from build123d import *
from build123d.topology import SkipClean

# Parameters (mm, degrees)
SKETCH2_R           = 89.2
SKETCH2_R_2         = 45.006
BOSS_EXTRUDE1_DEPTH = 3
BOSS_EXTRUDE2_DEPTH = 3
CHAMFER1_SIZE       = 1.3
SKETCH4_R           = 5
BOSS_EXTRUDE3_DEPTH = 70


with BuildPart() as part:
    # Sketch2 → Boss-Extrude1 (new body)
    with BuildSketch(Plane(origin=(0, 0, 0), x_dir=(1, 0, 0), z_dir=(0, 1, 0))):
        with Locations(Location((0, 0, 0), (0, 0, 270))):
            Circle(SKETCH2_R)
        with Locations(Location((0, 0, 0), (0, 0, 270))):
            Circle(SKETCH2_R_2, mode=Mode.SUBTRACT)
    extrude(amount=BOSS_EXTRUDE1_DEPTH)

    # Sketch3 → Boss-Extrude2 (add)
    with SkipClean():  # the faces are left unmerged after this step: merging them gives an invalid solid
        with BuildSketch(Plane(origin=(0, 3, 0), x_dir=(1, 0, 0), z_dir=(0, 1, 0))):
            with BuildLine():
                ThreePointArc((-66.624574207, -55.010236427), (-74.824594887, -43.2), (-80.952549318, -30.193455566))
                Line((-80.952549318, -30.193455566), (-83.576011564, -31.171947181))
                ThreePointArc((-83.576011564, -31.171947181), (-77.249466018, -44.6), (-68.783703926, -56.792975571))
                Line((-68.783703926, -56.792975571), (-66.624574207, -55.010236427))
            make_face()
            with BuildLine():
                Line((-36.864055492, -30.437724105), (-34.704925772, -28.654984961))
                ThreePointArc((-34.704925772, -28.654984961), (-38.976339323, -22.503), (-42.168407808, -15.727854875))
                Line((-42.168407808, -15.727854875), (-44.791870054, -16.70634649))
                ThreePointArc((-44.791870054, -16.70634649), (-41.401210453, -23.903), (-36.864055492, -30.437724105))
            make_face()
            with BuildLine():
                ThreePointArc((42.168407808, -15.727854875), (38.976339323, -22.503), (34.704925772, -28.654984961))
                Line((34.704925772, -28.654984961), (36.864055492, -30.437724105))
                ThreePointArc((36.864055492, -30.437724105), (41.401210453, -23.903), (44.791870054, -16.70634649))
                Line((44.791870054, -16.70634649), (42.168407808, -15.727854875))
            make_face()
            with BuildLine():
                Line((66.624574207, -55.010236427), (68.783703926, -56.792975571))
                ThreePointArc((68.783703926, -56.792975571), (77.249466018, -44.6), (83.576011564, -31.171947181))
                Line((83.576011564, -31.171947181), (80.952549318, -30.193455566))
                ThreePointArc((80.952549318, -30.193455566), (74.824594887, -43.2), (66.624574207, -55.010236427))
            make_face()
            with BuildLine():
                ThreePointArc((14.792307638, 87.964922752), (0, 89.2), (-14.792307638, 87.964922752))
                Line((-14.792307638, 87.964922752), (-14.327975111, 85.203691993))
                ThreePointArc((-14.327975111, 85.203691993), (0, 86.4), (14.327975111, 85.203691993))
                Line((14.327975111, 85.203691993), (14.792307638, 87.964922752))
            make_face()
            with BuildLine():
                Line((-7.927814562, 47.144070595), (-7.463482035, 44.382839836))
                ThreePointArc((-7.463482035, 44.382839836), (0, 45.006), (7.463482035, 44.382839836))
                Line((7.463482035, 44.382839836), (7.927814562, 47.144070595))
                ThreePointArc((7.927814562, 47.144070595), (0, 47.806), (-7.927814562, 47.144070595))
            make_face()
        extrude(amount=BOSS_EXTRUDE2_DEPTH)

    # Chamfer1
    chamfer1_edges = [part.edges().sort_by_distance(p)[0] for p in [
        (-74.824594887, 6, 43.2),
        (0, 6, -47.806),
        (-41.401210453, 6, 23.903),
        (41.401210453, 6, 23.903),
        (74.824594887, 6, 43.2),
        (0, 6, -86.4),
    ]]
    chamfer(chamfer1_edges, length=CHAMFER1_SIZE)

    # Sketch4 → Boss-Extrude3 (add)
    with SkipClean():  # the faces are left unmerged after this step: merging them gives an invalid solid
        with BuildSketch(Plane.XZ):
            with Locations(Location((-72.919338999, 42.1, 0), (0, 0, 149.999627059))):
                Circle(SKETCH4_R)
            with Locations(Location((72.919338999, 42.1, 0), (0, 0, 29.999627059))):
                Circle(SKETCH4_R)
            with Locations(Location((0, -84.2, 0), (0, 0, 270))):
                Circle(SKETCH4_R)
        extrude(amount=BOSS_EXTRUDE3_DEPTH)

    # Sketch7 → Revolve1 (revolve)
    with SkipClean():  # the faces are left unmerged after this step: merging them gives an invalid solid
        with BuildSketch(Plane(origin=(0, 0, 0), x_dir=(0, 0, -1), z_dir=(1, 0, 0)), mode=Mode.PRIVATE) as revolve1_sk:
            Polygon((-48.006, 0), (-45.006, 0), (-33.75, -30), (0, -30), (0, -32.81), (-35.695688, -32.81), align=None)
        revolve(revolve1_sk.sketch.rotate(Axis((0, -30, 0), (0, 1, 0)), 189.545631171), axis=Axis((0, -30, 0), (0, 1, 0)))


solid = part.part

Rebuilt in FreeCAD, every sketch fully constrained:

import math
import FreeCAD as App
import Part
import Sketcher

V = App.Vector


def edges_at(feature, points):
    """Names of the edges that pass closest to the given points."""
    edges = feature.Shape.Edges
    near = lambda p: min(range(len(edges)), key=lambda i: edges[i].distToShape(Part.Vertex(*p))[0])
    return sorted({f"Edge{near(p) + 1}" for p in points})


def add_polygon(sketch, points):
    """Adds a closed chain of lines whose ends are joined by coincident constraints."""
    first, n = sketch.GeometryCount, len(points)
    for a, b in zip(points, points[1:] + points[:1]):
        sketch.addGeometry(Part.LineSegment(App.Vector(*a, 0), App.Vector(*b, 0)), False)
    for i in range(n):
        sketch.addConstraint(Sketcher.Constraint("Coincident", first + i, 2, first + (i + 1) % n, 1))

doc = App.newDocument("Part")
body = doc.addObject("PartDesign::Body", "Body")

# Sketch on XZ plane
sketch1 = body.newObject("Sketcher::SketchObject", "Sketch")
sketch1.AttachmentSupport = (doc.getObject("XZ_Plane"), [""])
sketch1.MapMode = "FlatFace"
sketch1.addGeometry([
    Part.Circle(V(0, 0, 0), V(0, 0, 1), 89),
    Part.Circle(V(0, 0, 0), V(0, 0, 1), 45),
], False)
sketch1.addConstraint([
    Sketcher.Constraint("Coincident", 0, 3, -1, 1),
    Sketcher.Constraint("Coincident", 1, 3, -1, 1),
    Sketcher.Constraint("Diameter", 0, 178.4),
    Sketcher.Constraint("Diameter", 1, 90.012),
])
pad1 = body.newObject("PartDesign::Pad", "Pad")
pad1.Profile = sketch1
pad1.Length = 3
pad1.Reversed = True

# Sketch on XZ plane
sketch2 = body.newObject("Sketcher::SketchObject", "Sketch001")
sketch2.AttachmentSupport = (doc.getObject("XZ_Plane"), [""])
sketch2.MapMode = "FlatFace"
sketch2.AttachmentOffset = App.Placement(V(0, 0, -3), App.Rotation())
sketch2.addGeometry([
    Part.ArcOfCircle(Part.Circle(V(0, 0, 0), V(0, 0, 1), 86.4), math.radians(140.45), math.radians(159.55)),  # 0
    Part.LineSegment(V(-81, 30.2, 0), V(-83.6, 31.2, 0)),  # 1
    Part.ArcOfCircle(Part.Circle(V(0, 0, 0), V(0, 0, 1), 89.2), math.radians(140.45), math.radians(159.55)),  # 2
    Part.LineSegment(V(-68.8, 56.8, 0), V(-66.6, 55, 0)),  # 3
    Part.LineSegment(V(-36.9, 30.4, 0), V(-34.7, 28.7, 0)),  # 4
    Part.ArcOfCircle(Part.Circle(V(0, 0, 0), V(0, 0, 1), 45), math.radians(140.45), math.radians(159.55)),  # 5
    Part.LineSegment(V(-42.2, 15.7, 0), V(-44.8, 16.7, 0)),  # 6
    Part.ArcOfCircle(Part.Circle(V(0, 0, 0), V(0, 0, 1), 47.8), math.radians(140.45), math.radians(159.55)),  # 7
    Part.ArcOfCircle(Part.Circle(V(0, 0, 0), V(0, 0, 1), 45), math.radians(20.45), math.radians(39.55)),  # 8
    Part.LineSegment(V(34.7, 28.7, 0), V(36.9, 30.4, 0)),  # 9
    Part.ArcOfCircle(Part.Circle(V(0, 0, 0), V(0, 0, 1), 47.8), math.radians(20.45), math.radians(39.55)),  # 10
    Part.LineSegment(V(44.8, 16.7, 0), V(42.2, 15.7, 0)),  # 11
    Part.LineSegment(V(66.6, 55, 0), V(68.8, 56.8, 0)),  # 12
    Part.ArcOfCircle(Part.Circle(V(0, 0, 0), V(0, 0, 1), 89.2), math.radians(20.45), math.radians(39.55)),  # 13
    Part.LineSegment(V(83.6, 31.2, 0), V(81, 30.2, 0)),  # 14
    Part.ArcOfCircle(Part.Circle(V(0, 0, 0), V(0, 0, 1), 86.4), math.radians(20.45), math.radians(39.55)),  # 15
    Part.ArcOfCircle(Part.Circle(V(0, 0, 0), V(0, 0, 1), 89.2), math.radians(-99.55), math.radians(-80.45)),  # 16
    Part.LineSegment(V(-14.8, -88, 0), V(-14.3, -85.2, 0)),  # 17
    Part.ArcOfCircle(Part.Circle(V(0, 0, 0), V(0, 0, 1), 86.4), math.radians(-99.55), math.radians(-80.45)),  # 18
    Part.LineSegment(V(14.3, -85.2, 0), V(14.8, -88, 0)),  # 19
    Part.LineSegment(V(-7.9, -47.1, 0), V(-7.5, -44.4, 0)),  # 20
    Part.ArcOfCircle(Part.Circle(V(0, 0, 0), V(0, 0, 1), 45), math.radians(-99.55), math.radians(-80.45)),  # 21
    Part.LineSegment(V(7.5, -44.4, 0), V(7.9, -47.1, 0)),  # 22
    Part.ArcOfCircle(Part.Circle(V(0, 0, 0), V(0, 0, 1), 47.8), math.radians(-99.55), math.radians(-80.45)),  # 23
], False)
sketch2.addConstraint([
    Sketcher.Constraint("Coincident", 0, 2, 1, 1),
    Sketcher.Constraint("Coincident", 1, 2, 2, 2),
    Sketcher.Constraint("Coincident", 2, 1, 3, 1),
    Sketcher.Constraint("Coincident", 3, 2, 0, 1),
    Sketcher.Constraint("Coincident", 4, 2, 5, 1),
    Sketcher.Constraint("Coincident", 5, 2, 6, 1),
    Sketcher.Constraint("Coincident", 6, 2, 7, 2),
    Sketcher.Constraint("Coincident", 7, 1, 4, 1),
    Sketcher.Constraint("Coincident", 8, 2, 9, 1),
    Sketcher.Constraint("Coincident", 9, 2, 10, 2),
    Sketcher.Constraint("Coincident", 10, 1, 11, 1),
    Sketcher.Constraint("Coincident", 11, 2, 8, 1),
    Sketcher.Constraint("Coincident", 12, 2, 13, 2),
    Sketcher.Constraint("Coincident", 13, 1, 14, 1),
    Sketcher.Constraint("Coincident", 14, 2, 15, 1),
    Sketcher.Constraint("Coincident", 15, 2, 12, 1),
    Sketcher.Constraint("Coincident", 16, 1, 17, 1),
    Sketcher.Constraint("Coincident", 17, 2, 18, 1),
    Sketcher.Constraint("Coincident", 18, 2, 19, 1),
    Sketcher.Constraint("Coincident", 19, 2, 16, 2),
    Sketcher.Constraint("Coincident", 20, 2, 21, 1),
    Sketcher.Constraint("Coincident", 21, 2, 22, 1),
    Sketcher.Constraint("Coincident", 22, 2, 23, 2),
    Sketcher.Constraint("Coincident", 23, 1, 20, 1),
    Sketcher.Constraint("Coincident", 0, 3, -1, 1),
    Sketcher.Constraint("Coincident", 2, 3, -1, 1),
    Sketcher.Constraint("Coincident", 5, 3, -1, 1),
    Sketcher.Constraint("Coincident", 7, 3, -1, 1),
    Sketcher.Constraint("Coincident", 8, 3, -1, 1),
    Sketcher.Constraint("Coincident", 10, 3, -1, 1),
    Sketcher.Constraint("Coincident", 13, 3, -1, 1),
    Sketcher.Constraint("Coincident", 15, 3, -1, 1),
    Sketcher.Constraint("Coincident", 16, 3, -1, 1),
    Sketcher.Constraint("Coincident", 18, 3, -1, 1),
    Sketcher.Constraint("Coincident", 21, 3, -1, 1),
    Sketcher.Constraint("Coincident", 23, 3, -1, 1),
    Sketcher.Constraint("Equal", 5, 8),
    Sketcher.Constraint("Equal", 7, 10),
    Sketcher.Constraint("Equal", 2, 13),
    Sketcher.Constraint("Equal", 0, 15),
    Sketcher.Constraint("Equal", 13, 16),
    Sketcher.Constraint("Equal", 15, 18),
    Sketcher.Constraint("Equal", 8, 21),
    Sketcher.Constraint("Equal", 10, 23),
    Sketcher.Constraint("Parallel", 3, 4),
    Sketcher.Constraint("Parallel", 1, 6),
    Sketcher.Constraint("Parallel", 9, 12),
    Sketcher.Constraint("Parallel", 11, 14),
    Sketcher.Constraint("Parallel", 17, 20),
    Sketcher.Constraint("Parallel", 19, 22),
    Sketcher.Constraint("Horizontal", 4, 2, 8, 2),
    Sketcher.Constraint("Horizontal", 7, 1, 9, 2),
    Sketcher.Constraint("Horizontal", 6, 2, 10, 1),
    Sketcher.Constraint("Horizontal", 5, 2, 11, 2),
    Sketcher.Constraint("Horizontal", 2, 1, 12, 2),
    Sketcher.Constraint("Horizontal", 1, 2, 13, 1),
    Sketcher.Constraint("Horizontal", 17, 2, 18, 2),
    Sketcher.Constraint("Horizontal", 16, 1, 19, 2),
    Sketcher.Constraint("Horizontal", 20, 2, 21, 2),
    Sketcher.Constraint("Equal", 3, 4),
    Sketcher.Constraint("Radius", 0, 86.4),
    Sketcher.Constraint("Radius", 2, 89.2),
    Sketcher.Constraint("Radius", 5, 45.006),
    Sketcher.Constraint("DistanceY", 5, 2, 0, 2, 14.465601),
    Sketcher.Constraint("DistanceX", 0, 2, -1, 1, 80.952549),
    Sketcher.Constraint("DistanceX", 1, 2, -1, 1, 83.576012),
    Sketcher.Constraint("DistanceY", 17, 2, -1, 1, 85.203692),
    Sketcher.Constraint("DistanceY", 20, 2, -1, 1, 44.38284),
    Sketcher.Constraint("DistanceY", 22, 2, -1, 1, 47.144071),
    Sketcher.Constraint("DistanceY", 0, 2, 2, 1, 26.59952),
    Sketcher.Constraint("DistanceX", 2, 1, 3, 2, 2.15913),
    Sketcher.Constraint("DistanceX", 3, 2, 4, 2, 31.919648),
])
pad2 = body.newObject("PartDesign::Pad", "Pad001")
pad2.Profile = sketch2
pad2.Length = 3
pad2.Reversed = True
doc.recompute()

chamfer = body.newObject("PartDesign::Chamfer", "Chamfer")
chamfer.Base = (pad2, edges_at(pad2, [
    (-74.825, 6, 43.2),
    (0, 6, -47.806),
    (-41.401, 6, 23.903),
    (41.401, 6, 23.903),
    (74.825, 6, 43.2),
    (0, 6, -86.4),
]))
chamfer.Size = 1.3

# Sketch on XZ plane
sketch3 = body.newObject("Sketcher::SketchObject", "Sketch002")
sketch3.AttachmentSupport = (doc.getObject("XZ_Plane"), [""])
sketch3.MapMode = "FlatFace"
sketch3.addGeometry([
    Part.Circle(V(-73, 42, 0), V(0, 0, 1), 5),
    Part.Circle(V(73, 42, 0), V(0, 0, 1), 5),
    Part.Circle(V(0, -84, 0), V(0, 0, 1), 5),
], False)
sketch3.addConstraint([
    Sketcher.Constraint("Equal", 0, 1),
    Sketcher.Constraint("Equal", 1, 2),
    Sketcher.Constraint("Symmetric", 0, 3, 1, 3, -2),
    Sketcher.Constraint("PointOnObject", 2, 3, -2),
    Sketcher.Constraint("Diameter", 0, 10.0),
    Sketcher.Constraint("DistanceY", -1, 1, 0, 3, 42.1),
    Sketcher.Constraint("DistanceY", 2, 3, -1, 1, 84.2),
    Sketcher.Constraint("DistanceX", 0, 3, -1, 1, 72.919339),
])
pad3 = body.newObject("PartDesign::Pad", "Pad002")
pad3.Profile = sketch3
pad3.Length = 70

# Sketch on YZ plane
sketch4 = body.newObject("Sketcher::SketchObject", "Sketch003")
sketch4.AttachmentSupport = (doc.getObject("YZ_Plane"), [""])
sketch4.MapMode = "FlatFace"
add_polygon(sketch4, [(0, 45), (0, 48), (-32.8, 35.7), (-32.8, 0), (-30, 0), (-30, 33.8)])  # lines 0-5
sketch4.addConstraint([
    Sketcher.Constraint("Vertical", 0),
    Sketcher.Constraint("Vertical", 2),
    Sketcher.Constraint("Horizontal", 3),
    Sketcher.Constraint("Vertical", 4),
    Sketcher.Constraint("PointOnObject", 0, 2, -2),
    Sketcher.Constraint("PointOnObject", 2, 2, -1),
    Sketcher.Constraint("Parallel", 1, 5),
    Sketcher.Constraint("DistanceY", 0, 1, 0, 2, 3.0),
    Sketcher.Constraint("DistanceX", 3, 2, -1, 1, 30.0),
    Sketcher.Constraint("DistanceX", 3, 1, 3, 2, 2.81),
    Sketcher.Constraint("DistanceY", 4, 1, 4, 2, 33.75),
    Sketcher.Constraint("DistanceY", -1, 1, 0, 2, 48.006),
])
revolution = body.newObject("PartDesign::Revolution", "Revolution")
revolution.Profile = sketch4
revolution.ReferenceAxis = (sketch4, ["H_Axis"])
revolution.Angle = 360

doc.recompute()
